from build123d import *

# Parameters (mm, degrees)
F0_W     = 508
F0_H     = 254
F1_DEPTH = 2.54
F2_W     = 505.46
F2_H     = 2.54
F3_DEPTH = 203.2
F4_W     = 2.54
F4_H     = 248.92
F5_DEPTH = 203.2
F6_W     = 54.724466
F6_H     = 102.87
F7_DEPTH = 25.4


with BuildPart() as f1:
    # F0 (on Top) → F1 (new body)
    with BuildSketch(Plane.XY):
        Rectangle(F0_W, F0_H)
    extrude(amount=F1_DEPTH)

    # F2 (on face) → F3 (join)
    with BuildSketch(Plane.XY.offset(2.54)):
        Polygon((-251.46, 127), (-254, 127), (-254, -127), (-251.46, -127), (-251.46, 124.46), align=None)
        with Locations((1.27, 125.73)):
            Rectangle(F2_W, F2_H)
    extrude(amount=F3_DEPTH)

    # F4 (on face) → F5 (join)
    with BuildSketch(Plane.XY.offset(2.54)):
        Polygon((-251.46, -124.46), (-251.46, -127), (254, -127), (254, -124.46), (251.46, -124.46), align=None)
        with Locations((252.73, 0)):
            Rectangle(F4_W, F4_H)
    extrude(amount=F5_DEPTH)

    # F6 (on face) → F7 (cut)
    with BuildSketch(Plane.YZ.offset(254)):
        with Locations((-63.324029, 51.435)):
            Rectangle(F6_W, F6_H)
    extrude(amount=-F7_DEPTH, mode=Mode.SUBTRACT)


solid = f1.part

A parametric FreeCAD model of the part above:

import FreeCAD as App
import Part
import Sketcher
from FreeCAD import Vector
Q = App.Units.Quantity

doc = App.newDocument("Part")
body = doc.addObject("PartDesign::Body", "Body")

# Sketch on XY plane
sketch1 = doc.addObject("Sketcher::SketchObject", "Sketch")
body.addObject(sketch1)
sketch1.AttachmentSupport = (doc.XY_Plane, [""])
sketch1.MapMode = "FlatFace"
sketch1.addGeometry([
    Part.LineSegment(Vector(-254, 127, 0), Vector(-254, -127, 0)),
    Part.LineSegment(Vector(-254, -127, 0), Vector(254, -127, 0)),
    Part.LineSegment(Vector(254, -127, 0), Vector(254, 127, 0)),
    Part.LineSegment(Vector(254, 127, 0), Vector(-254, 127, 0)),
], False)
sketch1.addConstraint([
    Sketcher.Constraint("Coincident", 0, 2, 1, 1),
    Sketcher.Constraint("Coincident", 1, 2, 2, 1),
    Sketcher.Constraint("Coincident", 2, 2, 3, 1),
    Sketcher.Constraint("Coincident", 3, 2, 0, 1),
    Sketcher.Constraint("Vertical", 0),
    Sketcher.Constraint("Horizontal", 1),
    Sketcher.Constraint("Vertical", 2),
    Sketcher.Constraint("Horizontal", 3),
    Sketcher.Constraint("Symmetric", 0, 2, 2, 2, -1, 1),
    Sketcher.Constraint("DistanceX", 1, 1, 1, 2, Q("20 in")),
    Sketcher.Constraint("DistanceY", 0, 2, 0, 1, Q("10 in")),
])
pad1 = doc.addObject("PartDesign::Pad", "Pad")
body.addObject(pad1)
pad1.Profile = sketch1
pad1.Length = Q("0.1 in")

# Sketch on XY plane
sketch2 = doc.addObject("Sketcher::SketchObject", "Sketch001")
body.addObject(sketch2)
sketch2.AttachmentSupport = (doc.XY_Plane, [""])
sketch2.MapMode = "FlatFace"
sketch2.AttachmentOffset = App.Placement(Vector(0, 0, 0.1 * 25.4), App.Rotation())
sketch2.addGeometry([
    Part.LineSegment(Vector(-254, 127, 0), Vector(-254, -127, 0)),  # 0
    Part.LineSegment(Vector(-254, -127, 0), Vector(-251.5, -127, 0)),  # 1
    Part.LineSegment(Vector(-251.5, -127, 0), Vector(-251.5, 124.5, 0)),  # 2
    Part.LineSegment(Vector(-251.5, 124.5, 0), Vector(254, 124.5, 0)),  # 3
    Part.LineSegment(Vector(254, 124.5, 0), Vector(254, 127, 0)),  # 4
    Part.LineSegment(Vector(254, 127, 0), Vector(-254, 127, 0)),  # 5
], False)
sketch2.addConstraint([
    Sketcher.Constraint("Coincident", 0, 2, 1, 1),
    Sketcher.Constraint("Coincident", 1, 2, 2, 1),
    Sketcher.Constraint("Coincident", 2, 2, 3, 1),
    Sketcher.Constraint("Coincident", 3, 2, 4, 1),
    Sketcher.Constraint("Coincident", 4, 2, 5, 1),
    Sketcher.Constraint("Coincident", 5, 2, 0, 1),
    Sketcher.Constraint("Vertical", 0),
    Sketcher.Constraint("Horizontal", 1),
    Sketcher.Constraint("Vertical", 2),
    Sketcher.Constraint("Horizontal", 3),
    Sketcher.Constraint("Vertical", 4),
    Sketcher.Constraint("Horizontal", 5),
    Sketcher.Constraint("Symmetric", 0, 2, 4, 2, -1, 1),
    Sketcher.Constraint("Equal", 1, 4),
    Sketcher.Constraint("DistanceX", 5, 2, 5, 1, Q("20 in")),
    Sketcher.Constraint("DistanceY", 0, 2, 0, 1, Q("10 in")),
    Sketcher.Constraint("DistanceX", 1, 1, 1, 2, Q("0.1 in")),
])
pad2 = doc.addObject("PartDesign::Pad", "Pad001")
body.addObject(pad2)
pad2.Profile = sketch2
pad2.Length = Q("8 in")

# Sketch on XY plane
sketch3 = doc.addObject("Sketcher::SketchObject", "Sketch002")
body.addObject(sketch3)
sketch3.AttachmentSupport = (doc.XY_Plane, [""])
sketch3.MapMode = "FlatFace"
sketch3.AttachmentOffset = App.Placement(Vector(0, 0, 0.1 * 25.4), App.Rotation())
sketch3.addGeometry([
    Part.LineSegment(Vector(-251.5, -124.5, 0), Vector(-251.5, -127, 0)),  # 0
    Part.LineSegment(Vector(-251.5, -127, 0), Vector(254, -127, 0)),  # 1
    Part.LineSegment(Vector(254, -127, 0), Vector(254, 124.5, 0)),  # 2
    Part.LineSegment(Vector(254, 124.5, 0), Vector(251.5, 124.5, 0)),  # 3
    Part.LineSegment(Vector(251.5, 124.5, 0), Vector(251.5, -124.5, 0)),  # 4
    Part.LineSegment(Vector(251.5, -124.5, 0), Vector(-251.5, -124.5, 0)),  # 5
], False)
sketch3.addConstraint([
    Sketcher.Constraint("Coincident", 0, 2, 1, 1),
    Sketcher.Constraint("Coincident", 1, 2, 2, 1),
    Sketcher.Constraint("Coincident", 2, 2, 3, 1),
    Sketcher.Constraint("Coincident", 3, 2, 4, 1),
    Sketcher.Constraint("Coincident", 4, 2, 5, 1),
    Sketcher.Constraint("Coincident", 5, 2, 0, 1),
    Sketcher.Constraint("Vertical", 0),
    Sketcher.Constraint("Horizontal", 1),
    Sketcher.Constraint("Vertical", 2),
    Sketcher.Constraint("Horizontal", 3),
    Sketcher.Constraint("Vertical", 4),
    Sketcher.Constraint("Horizontal", 5),
    Sketcher.Constraint("Symmetric", 3, 2, 5, 2, -1, 1),
    Sketcher.Constraint("Equal", 3, 0),
    Sketcher.Constraint("DistanceX", 1, 1, 1, 2, Q("19.9 in")),
    Sketcher.Constraint("DistanceX", 3, 2, 3, 1, Q("0.1 in")),
    Sketcher.Constraint("DistanceY", 2, 1, 2, 2, Q("9.9 in")),
])
pad3 = doc.addObject("PartDesign::Pad", "Pad002")
body.addObject(pad3)
pad3.Profile = sketch3
pad3.Length = Q("8 in")

# Sketch on YZ plane
sketch4 = doc.addObject("Sketcher::SketchObject", "Sketch003")
body.addObject(sketch4)
sketch4.AttachmentSupport = (doc.YZ_Plane, [""])
sketch4.MapMode = "FlatFace"
sketch4.AttachmentOffset = App.Placement(Vector(0, 0, 10 * 25.4), App.Rotation())
sketch4.addGeometry([
    Part.LineSegment(Vector(-91, 103, 0), Vector(-91, 0, 0)),
    Part.LineSegment(Vector(-91, 0, 0), Vector(-36, 0, 0)),
    Part.LineSegment(Vector(-36, 0, 0), Vector(-36, 103, 0)),
    Part.LineSegment(Vector(-36, 103, 0), Vector(-91, 103, 0)),
], False)
sketch4.addConstraint([
    Sketcher.Constraint("Coincident", 0, 2, 1, 1),
    Sketcher.Constraint("Coincident", 1, 2, 2, 1),
    Sketcher.Constraint("Coincident", 2, 2, 3, 1),
    Sketcher.Constraint("Coincident", 3, 2, 0, 1),
    Sketcher.Constraint("Vertical", 0),
    Sketcher.Constraint("Horizontal", 1),
    Sketcher.Constraint("Vertical", 2),
    Sketcher.Constraint("Horizontal", 3),
    Sketcher.Constraint("PointOnObject", 0, 2, -1),
    Sketcher.Constraint("DistanceY", 0, 2, 0, 1, Q("4.05 in")),
    Sketcher.Constraint("DistanceX", 1, 1, 1, 2, 54.724466),
    Sketcher.Constraint("DistanceX", 0, 2, -1, 1, 90.686262),
])
pocket1 = doc.addObject("PartDesign::Pocket", "Pocket")
body.addObject(pocket1)
pocket1.Profile = sketch4
pocket1.Length = Q("1 in")

doc.recompute()
